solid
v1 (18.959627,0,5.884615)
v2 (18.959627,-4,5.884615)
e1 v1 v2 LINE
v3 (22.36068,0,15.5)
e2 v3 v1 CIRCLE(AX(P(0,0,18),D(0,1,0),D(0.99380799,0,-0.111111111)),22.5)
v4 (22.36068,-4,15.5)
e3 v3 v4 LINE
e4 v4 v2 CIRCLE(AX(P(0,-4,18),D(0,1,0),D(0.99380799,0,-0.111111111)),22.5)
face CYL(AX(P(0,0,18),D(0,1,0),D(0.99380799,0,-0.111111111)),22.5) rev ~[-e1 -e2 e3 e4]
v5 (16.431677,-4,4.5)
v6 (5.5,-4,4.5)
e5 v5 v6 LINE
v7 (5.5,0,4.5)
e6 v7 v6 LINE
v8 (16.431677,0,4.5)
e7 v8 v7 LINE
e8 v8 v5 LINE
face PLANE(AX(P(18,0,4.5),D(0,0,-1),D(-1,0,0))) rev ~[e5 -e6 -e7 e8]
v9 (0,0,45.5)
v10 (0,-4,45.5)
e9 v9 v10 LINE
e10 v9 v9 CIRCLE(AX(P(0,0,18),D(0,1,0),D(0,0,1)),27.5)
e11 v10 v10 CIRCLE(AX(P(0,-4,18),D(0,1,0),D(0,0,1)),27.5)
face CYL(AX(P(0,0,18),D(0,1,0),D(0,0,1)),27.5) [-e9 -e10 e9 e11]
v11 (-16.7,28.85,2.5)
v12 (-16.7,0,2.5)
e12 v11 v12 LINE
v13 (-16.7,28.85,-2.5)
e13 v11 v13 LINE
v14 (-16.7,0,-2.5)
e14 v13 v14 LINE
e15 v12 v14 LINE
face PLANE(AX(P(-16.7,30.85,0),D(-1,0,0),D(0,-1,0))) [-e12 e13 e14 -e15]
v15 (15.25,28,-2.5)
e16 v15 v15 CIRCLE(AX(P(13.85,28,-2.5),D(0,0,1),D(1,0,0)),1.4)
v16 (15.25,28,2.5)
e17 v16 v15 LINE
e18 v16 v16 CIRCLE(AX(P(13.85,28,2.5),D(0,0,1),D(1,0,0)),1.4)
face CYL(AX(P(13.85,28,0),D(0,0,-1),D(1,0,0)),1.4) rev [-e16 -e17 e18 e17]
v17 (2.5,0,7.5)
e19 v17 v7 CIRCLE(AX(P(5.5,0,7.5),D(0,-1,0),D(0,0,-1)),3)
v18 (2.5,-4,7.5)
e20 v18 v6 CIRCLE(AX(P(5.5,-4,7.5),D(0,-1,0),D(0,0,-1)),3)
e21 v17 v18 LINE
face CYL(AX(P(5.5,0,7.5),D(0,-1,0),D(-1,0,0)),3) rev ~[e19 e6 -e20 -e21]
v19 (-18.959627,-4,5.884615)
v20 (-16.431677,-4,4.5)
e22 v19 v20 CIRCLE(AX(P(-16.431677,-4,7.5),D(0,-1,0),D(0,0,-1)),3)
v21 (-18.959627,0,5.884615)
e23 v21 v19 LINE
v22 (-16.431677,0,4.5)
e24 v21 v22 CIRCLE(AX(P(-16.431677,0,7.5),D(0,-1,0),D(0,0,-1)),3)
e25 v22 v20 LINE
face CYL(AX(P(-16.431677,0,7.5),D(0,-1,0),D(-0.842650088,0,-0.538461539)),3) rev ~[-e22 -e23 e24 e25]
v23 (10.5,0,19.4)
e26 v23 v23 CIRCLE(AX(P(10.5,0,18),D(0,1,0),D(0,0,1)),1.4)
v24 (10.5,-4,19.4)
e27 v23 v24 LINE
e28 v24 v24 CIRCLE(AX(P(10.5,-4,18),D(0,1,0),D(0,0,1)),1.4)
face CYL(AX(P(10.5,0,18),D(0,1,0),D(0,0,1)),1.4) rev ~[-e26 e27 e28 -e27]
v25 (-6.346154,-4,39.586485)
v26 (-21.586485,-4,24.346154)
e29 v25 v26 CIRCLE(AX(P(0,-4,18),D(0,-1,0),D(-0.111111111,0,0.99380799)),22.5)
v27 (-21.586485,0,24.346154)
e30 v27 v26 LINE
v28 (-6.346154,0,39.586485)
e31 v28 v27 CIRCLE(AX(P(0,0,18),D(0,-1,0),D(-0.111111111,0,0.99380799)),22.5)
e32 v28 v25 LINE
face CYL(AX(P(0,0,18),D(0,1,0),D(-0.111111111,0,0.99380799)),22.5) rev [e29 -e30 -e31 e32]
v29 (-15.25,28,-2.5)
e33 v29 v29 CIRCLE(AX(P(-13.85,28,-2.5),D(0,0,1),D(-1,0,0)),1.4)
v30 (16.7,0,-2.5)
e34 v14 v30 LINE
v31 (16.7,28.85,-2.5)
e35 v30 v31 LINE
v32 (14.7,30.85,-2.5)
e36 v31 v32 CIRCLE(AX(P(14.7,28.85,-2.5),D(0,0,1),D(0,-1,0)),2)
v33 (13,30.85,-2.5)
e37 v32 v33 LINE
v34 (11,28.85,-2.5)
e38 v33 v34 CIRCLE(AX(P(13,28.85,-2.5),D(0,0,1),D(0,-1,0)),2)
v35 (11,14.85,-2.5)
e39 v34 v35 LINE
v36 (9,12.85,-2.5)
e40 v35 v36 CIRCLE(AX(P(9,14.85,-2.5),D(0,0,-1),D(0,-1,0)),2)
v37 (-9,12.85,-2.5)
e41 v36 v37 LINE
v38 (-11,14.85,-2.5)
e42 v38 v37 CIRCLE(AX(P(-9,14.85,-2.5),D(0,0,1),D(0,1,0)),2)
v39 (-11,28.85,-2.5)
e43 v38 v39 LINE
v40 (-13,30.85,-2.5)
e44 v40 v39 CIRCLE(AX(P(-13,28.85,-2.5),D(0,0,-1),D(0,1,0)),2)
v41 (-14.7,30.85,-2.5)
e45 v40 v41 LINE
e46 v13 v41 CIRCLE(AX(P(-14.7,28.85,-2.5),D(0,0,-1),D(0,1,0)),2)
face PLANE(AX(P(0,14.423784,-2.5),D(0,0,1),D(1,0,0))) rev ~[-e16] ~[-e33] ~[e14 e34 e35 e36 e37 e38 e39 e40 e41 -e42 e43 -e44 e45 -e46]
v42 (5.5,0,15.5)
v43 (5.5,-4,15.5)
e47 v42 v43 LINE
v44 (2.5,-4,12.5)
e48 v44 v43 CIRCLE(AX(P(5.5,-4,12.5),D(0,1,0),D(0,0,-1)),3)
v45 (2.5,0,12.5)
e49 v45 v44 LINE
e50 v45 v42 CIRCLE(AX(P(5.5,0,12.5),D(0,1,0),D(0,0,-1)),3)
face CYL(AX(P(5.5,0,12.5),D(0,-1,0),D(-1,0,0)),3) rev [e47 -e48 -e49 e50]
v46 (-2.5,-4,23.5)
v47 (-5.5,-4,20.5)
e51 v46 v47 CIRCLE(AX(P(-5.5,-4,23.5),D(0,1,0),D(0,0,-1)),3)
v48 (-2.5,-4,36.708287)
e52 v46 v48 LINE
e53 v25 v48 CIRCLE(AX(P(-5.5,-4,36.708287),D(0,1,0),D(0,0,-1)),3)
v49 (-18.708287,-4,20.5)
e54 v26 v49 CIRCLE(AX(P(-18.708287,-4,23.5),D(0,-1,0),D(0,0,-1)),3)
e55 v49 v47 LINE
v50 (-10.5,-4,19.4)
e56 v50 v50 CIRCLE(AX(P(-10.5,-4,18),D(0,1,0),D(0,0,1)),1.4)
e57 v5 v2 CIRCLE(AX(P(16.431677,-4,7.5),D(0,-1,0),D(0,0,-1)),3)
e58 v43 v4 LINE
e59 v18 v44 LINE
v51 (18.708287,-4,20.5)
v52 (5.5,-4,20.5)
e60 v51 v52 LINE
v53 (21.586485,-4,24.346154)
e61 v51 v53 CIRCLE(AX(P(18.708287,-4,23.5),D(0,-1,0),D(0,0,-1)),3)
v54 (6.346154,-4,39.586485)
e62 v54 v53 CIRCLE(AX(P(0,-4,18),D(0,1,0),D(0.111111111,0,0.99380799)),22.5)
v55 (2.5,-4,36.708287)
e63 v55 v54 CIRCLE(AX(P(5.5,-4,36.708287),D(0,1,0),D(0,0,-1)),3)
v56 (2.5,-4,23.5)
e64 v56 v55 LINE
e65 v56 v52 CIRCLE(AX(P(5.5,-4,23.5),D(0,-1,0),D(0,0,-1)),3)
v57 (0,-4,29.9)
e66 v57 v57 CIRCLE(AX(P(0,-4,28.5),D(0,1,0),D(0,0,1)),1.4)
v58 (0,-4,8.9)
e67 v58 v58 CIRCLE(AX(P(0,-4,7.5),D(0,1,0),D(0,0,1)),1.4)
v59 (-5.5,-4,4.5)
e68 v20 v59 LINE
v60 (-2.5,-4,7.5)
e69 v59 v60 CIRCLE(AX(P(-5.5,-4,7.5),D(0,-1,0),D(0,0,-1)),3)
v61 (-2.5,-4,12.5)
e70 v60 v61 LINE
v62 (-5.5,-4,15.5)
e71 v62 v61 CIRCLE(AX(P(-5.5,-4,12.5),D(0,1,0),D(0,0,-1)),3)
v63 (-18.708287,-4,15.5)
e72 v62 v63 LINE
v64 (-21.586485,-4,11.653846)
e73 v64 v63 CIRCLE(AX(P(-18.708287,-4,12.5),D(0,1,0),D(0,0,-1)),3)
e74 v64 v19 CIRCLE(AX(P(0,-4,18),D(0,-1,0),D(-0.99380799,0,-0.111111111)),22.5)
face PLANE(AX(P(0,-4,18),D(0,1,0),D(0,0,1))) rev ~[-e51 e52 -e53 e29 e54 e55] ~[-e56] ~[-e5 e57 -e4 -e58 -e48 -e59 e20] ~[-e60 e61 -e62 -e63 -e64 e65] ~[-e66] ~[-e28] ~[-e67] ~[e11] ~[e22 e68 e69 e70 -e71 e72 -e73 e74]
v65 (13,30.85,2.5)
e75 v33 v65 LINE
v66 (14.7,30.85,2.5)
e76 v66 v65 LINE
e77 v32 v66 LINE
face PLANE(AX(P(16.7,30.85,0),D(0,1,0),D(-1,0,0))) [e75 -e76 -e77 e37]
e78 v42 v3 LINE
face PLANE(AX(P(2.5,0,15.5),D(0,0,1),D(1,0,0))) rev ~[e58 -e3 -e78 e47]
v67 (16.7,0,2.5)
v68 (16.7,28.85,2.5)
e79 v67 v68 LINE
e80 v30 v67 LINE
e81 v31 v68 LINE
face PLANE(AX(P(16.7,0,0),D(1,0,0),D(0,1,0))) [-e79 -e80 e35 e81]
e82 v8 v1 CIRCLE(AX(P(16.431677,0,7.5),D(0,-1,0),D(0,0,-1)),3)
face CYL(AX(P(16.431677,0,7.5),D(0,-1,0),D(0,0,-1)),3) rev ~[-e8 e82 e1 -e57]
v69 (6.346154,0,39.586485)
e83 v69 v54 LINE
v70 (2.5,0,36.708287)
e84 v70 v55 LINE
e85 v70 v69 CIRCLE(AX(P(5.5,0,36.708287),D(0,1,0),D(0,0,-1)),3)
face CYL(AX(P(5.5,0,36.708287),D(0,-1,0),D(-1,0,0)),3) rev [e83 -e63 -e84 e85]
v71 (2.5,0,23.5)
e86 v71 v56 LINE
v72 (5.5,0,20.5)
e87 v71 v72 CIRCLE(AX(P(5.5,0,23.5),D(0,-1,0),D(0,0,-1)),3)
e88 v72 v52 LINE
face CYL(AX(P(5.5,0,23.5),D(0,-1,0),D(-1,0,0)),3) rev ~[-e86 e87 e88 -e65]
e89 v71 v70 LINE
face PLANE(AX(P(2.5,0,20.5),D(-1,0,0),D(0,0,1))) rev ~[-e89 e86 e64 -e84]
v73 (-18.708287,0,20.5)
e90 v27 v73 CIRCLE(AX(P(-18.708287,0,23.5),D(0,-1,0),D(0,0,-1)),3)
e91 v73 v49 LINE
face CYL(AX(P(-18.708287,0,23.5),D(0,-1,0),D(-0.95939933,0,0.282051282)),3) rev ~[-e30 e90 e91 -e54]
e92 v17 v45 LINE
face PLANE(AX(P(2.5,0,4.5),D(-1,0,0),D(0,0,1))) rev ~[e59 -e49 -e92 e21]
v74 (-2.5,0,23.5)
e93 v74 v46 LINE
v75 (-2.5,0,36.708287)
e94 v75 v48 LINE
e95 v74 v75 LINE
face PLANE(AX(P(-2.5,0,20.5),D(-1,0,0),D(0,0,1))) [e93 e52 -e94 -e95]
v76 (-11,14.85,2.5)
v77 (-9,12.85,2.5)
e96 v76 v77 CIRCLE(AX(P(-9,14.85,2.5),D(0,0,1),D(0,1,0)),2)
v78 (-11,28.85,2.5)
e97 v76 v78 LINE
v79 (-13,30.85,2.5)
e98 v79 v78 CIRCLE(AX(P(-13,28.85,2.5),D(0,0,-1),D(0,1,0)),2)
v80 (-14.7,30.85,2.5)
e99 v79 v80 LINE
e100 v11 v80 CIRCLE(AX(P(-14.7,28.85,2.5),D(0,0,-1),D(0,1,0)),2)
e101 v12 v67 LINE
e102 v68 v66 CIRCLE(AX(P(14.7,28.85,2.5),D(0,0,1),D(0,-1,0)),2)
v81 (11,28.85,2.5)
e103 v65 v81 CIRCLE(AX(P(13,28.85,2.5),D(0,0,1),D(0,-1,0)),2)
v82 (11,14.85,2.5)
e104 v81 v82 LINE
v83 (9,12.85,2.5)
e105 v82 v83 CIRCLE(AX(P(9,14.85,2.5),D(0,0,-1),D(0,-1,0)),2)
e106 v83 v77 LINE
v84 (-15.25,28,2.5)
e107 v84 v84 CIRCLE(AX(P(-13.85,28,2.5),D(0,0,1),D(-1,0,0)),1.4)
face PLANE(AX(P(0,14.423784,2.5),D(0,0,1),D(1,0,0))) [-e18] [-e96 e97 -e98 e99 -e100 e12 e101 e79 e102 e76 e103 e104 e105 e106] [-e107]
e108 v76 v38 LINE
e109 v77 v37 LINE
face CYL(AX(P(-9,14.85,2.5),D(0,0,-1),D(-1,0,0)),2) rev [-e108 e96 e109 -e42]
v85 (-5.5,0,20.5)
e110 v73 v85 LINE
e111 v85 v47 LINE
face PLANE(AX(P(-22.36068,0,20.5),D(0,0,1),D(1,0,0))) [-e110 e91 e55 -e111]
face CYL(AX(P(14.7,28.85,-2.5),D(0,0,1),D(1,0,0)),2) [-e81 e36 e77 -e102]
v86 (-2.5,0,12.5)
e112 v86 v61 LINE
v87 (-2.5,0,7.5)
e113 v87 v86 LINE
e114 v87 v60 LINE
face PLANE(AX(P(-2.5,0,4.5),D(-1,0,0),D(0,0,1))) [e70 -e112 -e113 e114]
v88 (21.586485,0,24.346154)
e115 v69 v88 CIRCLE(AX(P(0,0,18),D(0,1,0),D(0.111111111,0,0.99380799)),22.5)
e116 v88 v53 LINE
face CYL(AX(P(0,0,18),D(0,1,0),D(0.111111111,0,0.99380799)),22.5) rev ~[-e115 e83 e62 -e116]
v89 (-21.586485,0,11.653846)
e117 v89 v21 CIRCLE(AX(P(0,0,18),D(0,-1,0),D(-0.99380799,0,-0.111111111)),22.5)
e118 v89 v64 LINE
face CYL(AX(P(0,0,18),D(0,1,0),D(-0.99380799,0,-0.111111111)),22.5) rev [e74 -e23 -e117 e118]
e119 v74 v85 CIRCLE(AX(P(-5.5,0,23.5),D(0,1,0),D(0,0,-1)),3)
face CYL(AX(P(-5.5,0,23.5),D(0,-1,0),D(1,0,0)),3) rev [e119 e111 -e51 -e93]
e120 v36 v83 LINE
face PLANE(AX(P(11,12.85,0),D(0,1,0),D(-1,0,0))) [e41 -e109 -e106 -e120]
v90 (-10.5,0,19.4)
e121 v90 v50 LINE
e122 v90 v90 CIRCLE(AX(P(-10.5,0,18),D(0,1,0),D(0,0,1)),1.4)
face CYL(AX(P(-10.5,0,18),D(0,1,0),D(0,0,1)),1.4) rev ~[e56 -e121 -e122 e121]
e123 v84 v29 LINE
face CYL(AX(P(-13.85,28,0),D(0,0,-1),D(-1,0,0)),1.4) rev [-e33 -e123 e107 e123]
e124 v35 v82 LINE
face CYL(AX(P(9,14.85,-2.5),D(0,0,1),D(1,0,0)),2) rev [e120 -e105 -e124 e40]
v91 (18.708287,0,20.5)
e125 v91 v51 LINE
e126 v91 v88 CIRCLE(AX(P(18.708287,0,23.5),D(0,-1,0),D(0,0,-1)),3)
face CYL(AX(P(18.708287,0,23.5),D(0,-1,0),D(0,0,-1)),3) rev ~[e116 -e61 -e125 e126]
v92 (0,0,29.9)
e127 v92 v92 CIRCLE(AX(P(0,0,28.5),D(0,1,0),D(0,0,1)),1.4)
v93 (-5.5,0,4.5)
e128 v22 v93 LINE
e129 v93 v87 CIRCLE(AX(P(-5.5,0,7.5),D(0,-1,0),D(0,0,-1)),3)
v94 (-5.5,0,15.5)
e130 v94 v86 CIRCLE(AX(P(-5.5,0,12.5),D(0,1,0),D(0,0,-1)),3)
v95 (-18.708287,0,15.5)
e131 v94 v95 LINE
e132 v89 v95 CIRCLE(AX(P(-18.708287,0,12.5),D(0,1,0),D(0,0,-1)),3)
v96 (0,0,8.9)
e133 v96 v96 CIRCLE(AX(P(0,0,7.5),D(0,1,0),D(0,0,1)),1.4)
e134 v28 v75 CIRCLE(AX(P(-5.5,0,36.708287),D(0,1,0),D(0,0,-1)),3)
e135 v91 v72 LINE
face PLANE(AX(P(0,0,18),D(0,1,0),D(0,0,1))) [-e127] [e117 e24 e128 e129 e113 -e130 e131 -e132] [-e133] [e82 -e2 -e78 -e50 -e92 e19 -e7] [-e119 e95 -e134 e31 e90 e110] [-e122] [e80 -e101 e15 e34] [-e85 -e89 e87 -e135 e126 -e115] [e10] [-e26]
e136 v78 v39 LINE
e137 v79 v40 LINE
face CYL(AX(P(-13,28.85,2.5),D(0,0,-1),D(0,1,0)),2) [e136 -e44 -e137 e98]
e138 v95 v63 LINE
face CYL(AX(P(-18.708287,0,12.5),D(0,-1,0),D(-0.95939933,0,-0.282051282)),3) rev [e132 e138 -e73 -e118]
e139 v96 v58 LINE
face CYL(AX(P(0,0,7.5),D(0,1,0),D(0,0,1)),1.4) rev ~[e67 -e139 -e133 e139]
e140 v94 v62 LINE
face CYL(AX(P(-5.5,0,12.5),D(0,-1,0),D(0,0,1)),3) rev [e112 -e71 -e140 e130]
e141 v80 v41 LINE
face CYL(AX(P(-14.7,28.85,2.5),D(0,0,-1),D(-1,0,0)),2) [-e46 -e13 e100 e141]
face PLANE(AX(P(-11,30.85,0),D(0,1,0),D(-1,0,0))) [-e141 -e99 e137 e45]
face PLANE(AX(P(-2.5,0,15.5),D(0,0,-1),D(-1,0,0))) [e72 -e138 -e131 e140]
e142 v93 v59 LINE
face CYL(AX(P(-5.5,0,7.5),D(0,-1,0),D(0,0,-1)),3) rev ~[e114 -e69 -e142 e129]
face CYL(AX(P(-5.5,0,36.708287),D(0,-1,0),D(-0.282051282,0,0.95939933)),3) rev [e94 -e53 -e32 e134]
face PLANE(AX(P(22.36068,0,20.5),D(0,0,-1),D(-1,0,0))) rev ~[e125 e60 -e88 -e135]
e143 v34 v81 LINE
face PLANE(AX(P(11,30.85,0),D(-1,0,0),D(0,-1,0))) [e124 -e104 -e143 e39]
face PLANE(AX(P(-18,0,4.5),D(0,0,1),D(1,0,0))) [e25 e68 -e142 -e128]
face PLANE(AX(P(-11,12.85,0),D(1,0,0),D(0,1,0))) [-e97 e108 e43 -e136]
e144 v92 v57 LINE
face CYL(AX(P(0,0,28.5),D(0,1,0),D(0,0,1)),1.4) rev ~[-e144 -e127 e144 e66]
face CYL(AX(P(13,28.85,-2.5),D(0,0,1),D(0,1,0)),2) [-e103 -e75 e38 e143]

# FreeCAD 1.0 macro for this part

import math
import FreeCAD as App
import Part
import Sketcher


def edges_at(feature, points):
    """Names of the edges that pass closest to the given points."""
    edges = feature.Shape.Edges
    near = lambda p: min(range(len(edges)), key=lambda i: edges[i].distToShape(Part.Vertex(*p))[0])
    return sorted({f"Edge{near(p) + 1}" for p in points})


def add_polygon(sketch, points):
    """Adds a closed chain of lines whose ends are joined by coincident constraints."""
    first, n = sketch.GeometryCount, len(points)
    for a, b in zip(points, points[1:] + points[:1]):
        sketch.addGeometry(Part.LineSegment(App.Vector(*a, 0), App.Vector(*b, 0)), False)
    for i in range(n):
        sketch.addConstraint(Sketcher.Constraint("Coincident", first + i, 2, first + (i + 1) % n, 1))

doc = App.newDocument("Part")
body = doc.addObject("PartDesign::Body", "Body")

sketch1 = body.newObject("Sketcher::SketchObject", "Sketch")
sketch1.AttachmentSupport = (doc.getObject("XY_Plane"), [""])
sketch1.MapMode = "FlatFace"
add_polygon(sketch1, [(-16.7, 0), (16.7, 0), (16.7, 30.9), (11, 30.9), (11, 12.8), (-11, 12.8), (-11, 30.9), (-16.7, 30.9)])
sketch1.addGeometry(Part.Circle(App.Vector(-13.8, 28, 0), App.Vector(0, 0, 1), 1.4), False)
sketch1.addGeometry(Part.Circle(App.Vector(13.8, 28, 0), App.Vector(0, 0, 1), 1.4), False)
sketch1.addConstraint(Sketcher.Constraint("Horizontal", 0))
sketch1.addConstraint(Sketcher.Constraint("Vertical", 1))
sketch1.addConstraint(Sketcher.Constraint("Horizontal", 2))
sketch1.addConstraint(Sketcher.Constraint("Vertical", 3))
sketch1.addConstraint(Sketcher.Constraint("Horizontal", 4))
sketch1.addConstraint(Sketcher.Constraint("Vertical", 5))
sketch1.addConstraint(Sketcher.Constraint("Horizontal", 6))
sketch1.addConstraint(Sketcher.Constraint("Vertical", 7))
sketch1.addConstraint(Sketcher.Constraint("Equal", 8, 9))
sketch1.addConstraint(Sketcher.Constraint("Symmetric", 0, 2, 7, 2, -1, 1))
sketch1.addConstraint(Sketcher.Constraint("Symmetric", 8, 3, 9, 3, -2))
sketch1.addConstraint(Sketcher.Constraint("Symmetric", 2, 2, 5, 2, -2))
sketch1.addConstraint(Sketcher.Constraint("Diameter", 8, 2.8))
sketch1.addConstraint(Sketcher.Constraint("DistanceX", 4, 2, 4, 1, 22.0))
sketch1.addConstraint(Sketcher.Constraint("DistanceY", 3, 2, 3, 1, 18.0))
sketch1.addConstraint(Sketcher.Constraint("DistanceX", 0, 1, 0, 2, 33.4))
sketch1.addConstraint(Sketcher.Constraint("DistanceY", -1, 1, 8, 3, 28.0))
sketch1.addConstraint(Sketcher.Constraint("DistanceY", 1, 1, 1, 2, 30.85))
sketch1.addConstraint(Sketcher.Constraint("DistanceX", 8, 3, 9, 3, 27.7))
pad1 = body.newObject("PartDesign::Pad", "Pad")
pad1.Profile = sketch1
pad1.Length = 5
pad1.Midplane = True

sketch2 = body.newObject("Sketcher::SketchObject", "Sketch001")
sketch2.AttachmentSupport = (doc.getObject("XZ_Plane"), [""])
sketch2.MapMode = "FlatFace"
sketch2.addGeometry(Part.Circle(App.Vector(0, 18, 0), App.Vector(0, 0, 1), 27.5), False)
sketch2.addGeometry(Part.ArcOfCircle(Part.Circle(App.Vector(0, 18, 0), App.Vector(0, 0, 1), 22.5), math.radians(-174), math.radians(-143)), False)
sketch2.addGeometry(Part.LineSegment(App.Vector(-18, 4.5, 0), App.Vector(-2.5, 4.5, 0)), False)
sketch2.addGeometry(Part.LineSegment(App.Vector(-2.5, 4.5, 0), App.Vector(-2.5, 15.5, 0)), False)
sketch2.addGeometry(Part.LineSegment(App.Vector(-2.5, 15.5, 0), App.Vector(-22.4, 15.5, 0)), False)
sketch2.addGeometry(Part.Circle(App.Vector(0, 7.5, 0), App.Vector(0, 0, 1), 1.4), False)
sketch2.addGeometry(Part.Circle(App.Vector(-10.5, 18, 0), App.Vector(0, 0, 1), 1.4), False)
sketch2.addGeometry(Part.ArcOfCircle(Part.Circle(App.Vector(0, 18, 0), App.Vector(0, 0, 1), 22.5), math.radians(96), math.radians(174)), False)
sketch2.addGeometry(Part.LineSegment(App.Vector(-22.4, 20.5, 0), App.Vector(-2.5, 20.5, 0)), False)
sketch2.addGeometry(Part.LineSegment(App.Vector(-2.5, 20.5, 0), App.Vector(-2.5, 40.4, 0)), False)
sketch2.addGeometry(Part.Circle(App.Vector(10.5, 18, 0), App.Vector(0, 0, 1), 1.4), False)
sketch2.addGeometry(Part.LineSegment(App.Vector(2.5, 15.5, 0), App.Vector(2.5, 4.5, 0)), False)
sketch2.addGeometry(Part.LineSegment(App.Vector(2.5, 4.5, 0), App.Vector(18, 4.5, 0)), False)
sketch2.addGeometry(Part.ArcOfCircle(Part.Circle(App.Vector(0, 18, 0), App.Vector(0, 0, 1), 22.5), math.radians(-37), math.radians(-6)), False)
sketch2.addGeometry(Part.LineSegment(App.Vector(22.4, 15.5, 0), App.Vector(2.5, 15.5, 0)), False)
sketch2.addGeometry(Part.Circle(App.Vector(0, 28.5, 0), App.Vector(0, 0, 1), 1.4), False)
sketch2.addGeometry(Part.LineSegment(App.Vector(2.5, 40.4, 0), App.Vector(2.5, 20.5, 0)), False)
sketch2.addGeometry(Part.LineSegment(App.Vector(2.5, 20.5, 0), App.Vector(22.4, 20.5, 0)), False)
sketch2.addGeometry(Part.ArcOfCircle(Part.Circle(App.Vector(0, 18, 0), App.Vector(0, 0, 1), 22.5), math.radians(6), math.radians(84)), False)
sketch2.addConstraint(Sketcher.Constraint("Coincident", 1, 2, 2, 1))
sketch2.addConstraint(Sketcher.Constraint("Coincident", 2, 2, 3, 1))
sketch2.addConstraint(Sketcher.Constraint("Coincident", 3, 2, 4, 1))
sketch2.addConstraint(Sketcher.Constraint("Coincident", 4, 2, 1, 1))
sketch2.addConstraint(Sketcher.Constraint("Coincident", 7, 2, 8, 1))
sketch2.addConstraint(Sketcher.Constraint("Coincident", 8, 2, 9, 1))
sketch2.addConstraint(Sketcher.Constraint("Coincident", 9, 2, 7, 1))
sketch2.addConstraint(Sketcher.Constraint("Coincident", 11, 2, 12, 1))
sketch2.addConstraint(Sketcher.Constraint("Coincident", 12, 2, 13, 1))
sketch2.addConstraint(Sketcher.Constraint("Coincident", 13, 2, 14, 1))
sketch2.addConstraint(Sketcher.Constraint("Coincident", 14, 2, 11, 1))
sketch2.addConstraint(Sketcher.Constraint("Coincident", 16, 2, 17, 1))
sketch2.addConstraint(Sketcher.Constraint("Coincident", 17, 2, 18, 1))
sketch2.addConstraint(Sketcher.Constraint("Coincident", 18, 2, 16, 1))
sketch2.addConstraint(Sketcher.Constraint("Horizontal", 2))
sketch2.addConstraint(Sketcher.Constraint("Vertical", 3))
sketch2.addConstraint(Sketcher.Constraint("Horizontal", 4))
sketch2.addConstraint(Sketcher.Constraint("Horizontal", 8))
sketch2.addConstraint(Sketcher.Constraint("Vertical", 9))
sketch2.addConstraint(Sketcher.Constraint("Vertical", 11))
sketch2.addConstraint(Sketcher.Constraint("Horizontal", 12))
sketch2.addConstraint(Sketcher.Constraint("Horizontal", 14))
sketch2.addConstraint(Sketcher.Constraint("Vertical", 16))
sketch2.addConstraint(Sketcher.Constraint("Horizontal", 17))
sketch2.addConstraint(Sketcher.Constraint("Coincident", 1, 3, 0, 3))
sketch2.addConstraint(Sketcher.Constraint("Coincident", 7, 3, 0, 3))
sketch2.addConstraint(Sketcher.Constraint("Coincident", 13, 3, 0, 3))
sketch2.addConstraint(Sketcher.Constraint("Coincident", 18, 3, 0, 3))
sketch2.addConstraint(Sketcher.Constraint("Equal", 5, 6))
sketch2.addConstraint(Sketcher.Constraint("Equal", 1, 7))
sketch2.addConstraint(Sketcher.Constraint("Equal", 6, 10))
sketch2.addConstraint(Sketcher.Constraint("Equal", 7, 13))
sketch2.addConstraint(Sketcher.Constraint("Equal", 10, 15))
sketch2.addConstraint(Sketcher.Constraint("Equal", 13, 18))
sketch2.addConstraint(Sketcher.Constraint("Symmetric", 6, 3, 10, 3, -2))
sketch2.addConstraint(Sketcher.Constraint("Symmetric", 2, 2, 11, 2, -2))
sketch2.addConstraint(Sketcher.Constraint("Symmetric", 4, 2, 13, 2, -2))
sketch2.addConstraint(Sketcher.Constraint("Symmetric", 8, 2, 16, 2, -2))
sketch2.addConstraint(Sketcher.Constraint("PointOnObject", 5, 3, -2))
sketch2.addConstraint(Sketcher.Constraint("PointOnObject", 15, 3, -2))
sketch2.addConstraint(Sketcher.Constraint("Horizontal", 1, 3, 6, 3))
sketch2.addConstraint(Sketcher.Constraint("Vertical", 4, 2, 7, 2))
sketch2.addConstraint(Sketcher.Constraint("Vertical", 3, 2, 8, 2))
sketch2.addConstraint(Sketcher.Constraint("Equal", 17, 9))
sketch2.addConstraint(Sketcher.Constraint("Diameter", 0, 55.0))
sketch2.addConstraint(Sketcher.Constraint("Diameter", 5, 2.8))
sketch2.addConstraint(Sketcher.Constraint("Radius", 1, 22.5))
sketch2.addConstraint(Sketcher.Constraint("DistanceY", 3, 1, 3, 2, 11.0))
sketch2.addConstraint(Sketcher.Constraint("DistanceX", 2, 1, 2, 2, 15.5))
sketch2.addConstraint(Sketcher.Constraint("DistanceY", -1, 1, 0, 3, 18.0))
sketch2.addConstraint(Sketcher.Constraint("DistanceX", 6, 3, 10, 3, 21.0))
sketch2.addConstraint(Sketcher.Constraint("DistanceY", 1, 2, 5, 3, 3.0))
sketch2.addConstraint(Sketcher.Constraint("DistanceY", -1, 1, 15, 3, 28.5))
pad2 = body.newObject("PartDesign::Pad", "Pad001")
pad2.Profile = sketch2
pad2.Length = 4
doc.recompute()

fillet = body.newObject("PartDesign::Fillet", "Fillet")
fillet.Base = (pad2, edges_at(pad2, [
    (-18, -2, 4.5),
    (-22.361, -2, 15.5),
    (-2.5, -2, 15.5),
    (-22.361, -2, 20.5),
    (-2.5, -2, 40.361),
    (18, -2, 4.5),
    (2.5, -2, 4.5),
    (2.5, -2, 40.361),
    (22.361, -2, 20.5),
    (-2.5, -2, 4.5),
    (-2.5, -2, 20.5),
    (2.5, -2, 15.5),
    (2.5, -2, 20.5),
]))
fillet.Radius = 3
doc.recompute()

fillet2 = body.newObject("PartDesign::Fillet", "Fillet001")
fillet2.Base = (fillet, edges_at(fillet, [
    (-16.7, 30.85, 0),
    (-11, 30.85, 0),
    (-11, 12.85, 0),
    (11, 12.85, 0),
    (11, 30.85, 0),
    (16.7, 30.85, 0),
]))
fillet2.Radius = 2

doc.recompute()
